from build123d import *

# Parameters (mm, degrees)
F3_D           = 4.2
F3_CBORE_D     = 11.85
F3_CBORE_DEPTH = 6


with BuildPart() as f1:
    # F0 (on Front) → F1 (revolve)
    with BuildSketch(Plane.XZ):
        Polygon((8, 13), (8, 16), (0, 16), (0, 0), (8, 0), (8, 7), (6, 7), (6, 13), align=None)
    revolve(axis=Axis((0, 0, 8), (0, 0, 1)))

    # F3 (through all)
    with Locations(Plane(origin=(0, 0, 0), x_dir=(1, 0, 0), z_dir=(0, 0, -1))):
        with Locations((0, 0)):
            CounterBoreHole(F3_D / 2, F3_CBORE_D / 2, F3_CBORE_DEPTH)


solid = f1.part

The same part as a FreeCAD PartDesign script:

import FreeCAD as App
import Part
import Sketcher
from FreeCAD import Vector
Q = App.Units.Quantity


def add_polygon(sketch, points):
    """Adds a closed chain of lines whose ends are joined by coincident constraints."""
    first, n = sketch.GeometryCount, len(points)
    for a, b in zip(points, points[1:] + points[:1]):
        sketch.addGeometry(Part.LineSegment(App.Vector(*a, 0), App.Vector(*b, 0)), False)
    for i in range(n):
        sketch.addConstraint(Sketcher.Constraint("Coincident", first + i, 2, first + (i + 1) % n, 1))

doc = App.newDocument("Part")
body = doc.addObject("PartDesign::Body", "Body")

sketch1 = body.newObject("Sketcher::SketchObject", "Sketch")
sketch1.AttachmentSupport = (doc.getObject("XZ_Plane"), [""])
sketch1.MapMode = "FlatFace"
add_polygon(sketch1, [(8, 13), (8, 16), (0, 16), (0, 0), (8, 0), (8, 7), (6, 7), (6, 13)])
sketch1.addConstraint(Sketcher.Constraint("Vertical", 0))
sketch1.addConstraint(Sketcher.Constraint("Horizontal", 1))
sketch1.addConstraint(Sketcher.Constraint("Vertical", 2))
sketch1.addConstraint(Sketcher.Constraint("Horizontal", 3))
sketch1.addConstraint(Sketcher.Constraint("Vertical", 4))
sketch1.addConstraint(Sketcher.Constraint("Horizontal", 5))
sketch1.addConstraint(Sketcher.Constraint("Vertical", 6))
sketch1.addConstraint(Sketcher.Constraint("Horizontal", 7))
sketch1.addConstraint(Sketcher.Constraint("Coincident", 2, 2, -1, 1))
sketch1.addConstraint(Sketcher.Constraint("Vertical", 0, 2, 3, 2))
sketch1.addConstraint(Sketcher.Constraint("DistanceX", 1, 2, 1, 1, Q("8 mm")))
sketch1.addConstraint(Sketcher.Constraint("DistanceX", 5, 2, 5, 1, Q("2 mm")))
sketch1.addConstraint(Sketcher.Constraint("DistanceY", 0, 1, 0, 2, Q("3 mm")))
sketch1.addConstraint(Sketcher.Constraint("DistanceY", 2, 2, 2, 1, Q("16 mm")))
sketch1.addConstraint(Sketcher.Constraint("DistanceY", 4, 1, 4, 2, Q("7 mm")))
revolution = body.newObject("PartDesign::Revolution", "Revolution")
revolution.Profile = sketch1
revolution.ReferenceAxis = (sketch1, ["V_Axis"])
revolution.Angle = 360

sketch2 = body.newObject("Sketcher::SketchObject", "Sketch001")
sketch2.AttachmentSupport = (doc.getObject("XY_Plane"), [""])
sketch2.MapMode = "FlatFace"
sketch2.addGeometry(Part.Circle(Vector(0, 0, 0), Vector(0, 0, 1), 2.1), False)
sketch2.addConstraint(Sketcher.Constraint("Coincident", 0, 3, -1, 1))
sketch2.addConstraint(Sketcher.Constraint("Diameter", 0, Q("4.2 mm")))
doc.recompute()
hole = body.newObject("PartDesign::Hole", "Hole")
hole.Profile = sketch2
hole.ThreadType = "None"
hole.Diameter = 4.2
hole.DepthType = "ThroughAll"
hole.HoleCutType = "Counterbore"
hole.HoleCutDiameter = 11.85
hole.HoleCutDepth = 6
hole.Reversed = True

doc.recompute()
